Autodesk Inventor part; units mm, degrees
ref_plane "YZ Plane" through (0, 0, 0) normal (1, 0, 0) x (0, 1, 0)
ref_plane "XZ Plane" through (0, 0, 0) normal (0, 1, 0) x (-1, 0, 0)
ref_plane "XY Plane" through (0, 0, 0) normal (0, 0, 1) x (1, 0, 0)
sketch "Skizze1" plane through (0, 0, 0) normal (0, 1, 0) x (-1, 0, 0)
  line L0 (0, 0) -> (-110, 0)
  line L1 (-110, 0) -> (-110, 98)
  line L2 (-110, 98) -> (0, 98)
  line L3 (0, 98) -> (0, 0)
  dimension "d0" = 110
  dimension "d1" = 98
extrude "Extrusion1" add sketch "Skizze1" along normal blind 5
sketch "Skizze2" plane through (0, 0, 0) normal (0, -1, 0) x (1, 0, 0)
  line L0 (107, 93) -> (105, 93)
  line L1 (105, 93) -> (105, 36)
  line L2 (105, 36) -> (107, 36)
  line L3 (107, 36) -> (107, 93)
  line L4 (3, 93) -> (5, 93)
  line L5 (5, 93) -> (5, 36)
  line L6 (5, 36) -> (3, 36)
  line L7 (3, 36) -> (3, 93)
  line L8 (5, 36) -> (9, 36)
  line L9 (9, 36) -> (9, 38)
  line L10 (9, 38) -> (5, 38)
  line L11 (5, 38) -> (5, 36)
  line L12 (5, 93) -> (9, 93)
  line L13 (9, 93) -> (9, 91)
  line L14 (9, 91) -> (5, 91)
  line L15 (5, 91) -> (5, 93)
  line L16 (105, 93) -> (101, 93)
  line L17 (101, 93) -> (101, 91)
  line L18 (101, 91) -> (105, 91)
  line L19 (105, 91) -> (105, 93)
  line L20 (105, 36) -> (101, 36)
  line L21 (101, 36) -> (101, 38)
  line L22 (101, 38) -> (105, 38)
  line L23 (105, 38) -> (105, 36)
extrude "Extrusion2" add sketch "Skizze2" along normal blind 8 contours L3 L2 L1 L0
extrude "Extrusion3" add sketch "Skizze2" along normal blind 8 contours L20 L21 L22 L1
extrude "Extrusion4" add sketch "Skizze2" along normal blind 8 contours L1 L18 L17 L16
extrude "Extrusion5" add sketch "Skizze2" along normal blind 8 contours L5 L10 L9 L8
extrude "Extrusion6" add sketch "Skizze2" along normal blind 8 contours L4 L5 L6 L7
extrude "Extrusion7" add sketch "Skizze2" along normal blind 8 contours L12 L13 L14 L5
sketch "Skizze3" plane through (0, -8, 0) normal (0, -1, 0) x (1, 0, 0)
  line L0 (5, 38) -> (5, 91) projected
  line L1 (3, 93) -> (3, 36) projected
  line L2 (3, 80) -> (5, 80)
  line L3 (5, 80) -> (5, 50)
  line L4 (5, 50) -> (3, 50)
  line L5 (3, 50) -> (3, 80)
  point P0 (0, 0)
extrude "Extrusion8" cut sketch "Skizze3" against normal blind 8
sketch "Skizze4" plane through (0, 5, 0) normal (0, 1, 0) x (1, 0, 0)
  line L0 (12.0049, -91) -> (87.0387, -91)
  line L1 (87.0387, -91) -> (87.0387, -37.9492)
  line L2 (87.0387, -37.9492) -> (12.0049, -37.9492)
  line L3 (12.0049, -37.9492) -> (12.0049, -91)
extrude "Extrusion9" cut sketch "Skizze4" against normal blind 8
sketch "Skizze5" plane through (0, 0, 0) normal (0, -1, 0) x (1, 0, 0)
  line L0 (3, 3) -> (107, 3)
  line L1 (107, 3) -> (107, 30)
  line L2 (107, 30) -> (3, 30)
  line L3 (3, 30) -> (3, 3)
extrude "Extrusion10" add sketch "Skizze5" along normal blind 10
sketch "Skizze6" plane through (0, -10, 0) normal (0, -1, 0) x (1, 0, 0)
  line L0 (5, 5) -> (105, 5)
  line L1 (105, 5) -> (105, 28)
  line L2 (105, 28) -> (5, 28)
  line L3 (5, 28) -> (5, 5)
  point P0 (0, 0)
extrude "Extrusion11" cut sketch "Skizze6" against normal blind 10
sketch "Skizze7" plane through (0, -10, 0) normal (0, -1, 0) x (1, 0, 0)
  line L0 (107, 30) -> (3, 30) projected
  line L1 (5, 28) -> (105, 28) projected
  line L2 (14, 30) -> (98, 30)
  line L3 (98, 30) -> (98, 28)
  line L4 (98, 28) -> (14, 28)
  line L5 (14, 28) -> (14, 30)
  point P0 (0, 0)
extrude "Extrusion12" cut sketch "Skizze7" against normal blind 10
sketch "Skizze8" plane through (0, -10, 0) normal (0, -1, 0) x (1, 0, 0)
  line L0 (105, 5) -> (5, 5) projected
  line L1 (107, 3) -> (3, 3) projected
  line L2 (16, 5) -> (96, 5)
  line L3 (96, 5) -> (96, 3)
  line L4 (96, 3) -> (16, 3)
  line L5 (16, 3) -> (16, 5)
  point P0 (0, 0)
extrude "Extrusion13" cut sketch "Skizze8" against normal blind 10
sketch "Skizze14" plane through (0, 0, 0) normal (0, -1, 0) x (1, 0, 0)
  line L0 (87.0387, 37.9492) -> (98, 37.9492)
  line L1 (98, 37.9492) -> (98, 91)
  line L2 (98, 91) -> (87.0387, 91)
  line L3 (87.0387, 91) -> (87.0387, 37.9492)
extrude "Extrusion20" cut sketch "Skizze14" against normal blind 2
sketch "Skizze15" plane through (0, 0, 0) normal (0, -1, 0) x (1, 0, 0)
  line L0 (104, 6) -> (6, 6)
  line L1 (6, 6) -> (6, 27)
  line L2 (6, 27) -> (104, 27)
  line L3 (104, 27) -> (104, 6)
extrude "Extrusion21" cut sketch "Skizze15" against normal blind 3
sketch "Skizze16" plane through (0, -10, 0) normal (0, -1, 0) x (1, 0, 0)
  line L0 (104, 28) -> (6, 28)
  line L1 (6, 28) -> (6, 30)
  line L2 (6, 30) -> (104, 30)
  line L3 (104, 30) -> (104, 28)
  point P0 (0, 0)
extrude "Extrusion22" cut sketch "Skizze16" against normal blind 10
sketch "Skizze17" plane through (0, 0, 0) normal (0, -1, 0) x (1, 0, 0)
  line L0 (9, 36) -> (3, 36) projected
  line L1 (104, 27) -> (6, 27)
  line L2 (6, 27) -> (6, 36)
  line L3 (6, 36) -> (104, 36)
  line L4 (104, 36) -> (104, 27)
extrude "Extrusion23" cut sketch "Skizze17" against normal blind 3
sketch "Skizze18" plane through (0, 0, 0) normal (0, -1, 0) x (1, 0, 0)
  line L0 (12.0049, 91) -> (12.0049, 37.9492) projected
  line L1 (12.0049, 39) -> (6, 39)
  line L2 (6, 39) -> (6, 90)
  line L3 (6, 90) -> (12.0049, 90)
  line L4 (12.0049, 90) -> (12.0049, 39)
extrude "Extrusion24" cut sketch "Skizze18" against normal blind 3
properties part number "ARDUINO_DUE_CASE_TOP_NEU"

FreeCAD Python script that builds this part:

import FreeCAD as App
import Part
import Sketcher

V = App.Vector


def add_polygon(sketch, points):
    """Adds a closed chain of lines whose ends are joined by coincident constraints."""
    first, n = sketch.GeometryCount, len(points)
    for a, b in zip(points, points[1:] + points[:1]):
        sketch.addGeometry(Part.LineSegment(App.Vector(*a, 0), App.Vector(*b, 0)), False)
    for i in range(n):
        sketch.addConstraint(Sketcher.Constraint("Coincident", first + i, 2, first + (i + 1) % n, 1))

doc = App.newDocument("Part")
body = doc.addObject("PartDesign::Body", "Body")

# Sketch on XZ plane
sketch1 = doc.addObject("Sketcher::SketchObject", "Sketch")
body.addObject(sketch1)
sketch1.AttachmentSupport = (doc.XZ_Plane, [""])
sketch1.MapMode = "FlatFace"
add_polygon(sketch1, [(110, 0), (0, 0), (0, 98), (110, 98)])  # lines 0-3
sketch1.addConstraint(Sketcher.Constraint("Horizontal", 0))
sketch1.addConstraint(Sketcher.Constraint("Vertical", 1))
sketch1.addConstraint(Sketcher.Constraint("Horizontal", 2))
sketch1.addConstraint(Sketcher.Constraint("Vertical", 3))
sketch1.addConstraint(Sketcher.Constraint("Coincident", 0, 2, -1, 1))
sketch1.addConstraint(Sketcher.Constraint("DistanceX", 0, 2, 0, 1, 110.0))
sketch1.addConstraint(Sketcher.Constraint("DistanceY", 1, 1, 1, 2, 98.0))
pad1 = doc.addObject("PartDesign::Pad", "Pad")
body.addObject(pad1)
pad1.Profile = sketch1
pad1.Length = 5
pad1.Reversed = True

# Sketch on XZ plane
sketch2 = doc.addObject("Sketcher::SketchObject", "Sketch001")
body.addObject(sketch2)
sketch2.AttachmentSupport = (doc.XZ_Plane, [""])
sketch2.MapMode = "FlatFace"
add_polygon(sketch2, [(107, 36), (107, 93), (105, 93), (105, 36)])  # lines 0-3
sketch2.addConstraint(Sketcher.Constraint("Vertical", 0))
sketch2.addConstraint(Sketcher.Constraint("Horizontal", 1))
sketch2.addConstraint(Sketcher.Constraint("Vertical", 2))
sketch2.addConstraint(Sketcher.Constraint("Horizontal", 3))
sketch2.addConstraint(Sketcher.Constraint("DistanceX", 1, 2, 1, 1, 2.0))
sketch2.addConstraint(Sketcher.Constraint("DistanceY", 0, 1, 0, 2, 57.0))
sketch2.addConstraint(Sketcher.Constraint("DistanceX", -1, 1, 0, 2, 107.0))
sketch2.addConstraint(Sketcher.Constraint("DistanceY", -1, 1, 0, 2, 93.0))
pad2 = doc.addObject("PartDesign::Pad", "Pad001")
body.addObject(pad2)
pad2.Profile = sketch2
pad2.Length = 8

# Sketch on XZ plane
sketch3 = doc.addObject("Sketcher::SketchObject", "Sketch002")
body.addObject(sketch3)
sketch3.AttachmentSupport = (doc.XZ_Plane, [""])
sketch3.MapMode = "FlatFace"
add_polygon(sketch3, [(101, 36), (105, 36), (105, 38), (101, 38)])  # lines 0-3
sketch3.addConstraint(Sketcher.Constraint("Horizontal", 0))
sketch3.addConstraint(Sketcher.Constraint("Vertical", 1))
sketch3.addConstraint(Sketcher.Constraint("Horizontal", 2))
sketch3.addConstraint(Sketcher.Constraint("Vertical", 3))
sketch3.addConstraint(Sketcher.Constraint("DistanceX", 0, 1, 0, 2, 4.0))
sketch3.addConstraint(Sketcher.Constraint("DistanceY", 1, 1, 1, 2, 2.0))
sketch3.addConstraint(Sketcher.Constraint("DistanceX", -1, 1, 0, 2, 105.0))
sketch3.addConstraint(Sketcher.Constraint("DistanceY", -1, 1, 0, 2, 36.0))
pad3 = doc.addObject("PartDesign::Pad", "Pad002")
body.addObject(pad3)
pad3.Profile = sketch3
pad3.Length = 8

# Sketch on XZ plane
sketch4 = doc.addObject("Sketcher::SketchObject", "Sketch003")
body.addObject(sketch4)
sketch4.AttachmentSupport = (doc.XZ_Plane, [""])
sketch4.MapMode = "FlatFace"
add_polygon(sketch4, [(105, 91), (105, 93), (101, 93), (101, 91)])  # lines 0-3
sketch4.addConstraint(Sketcher.Constraint("Vertical", 0))
sketch4.addConstraint(Sketcher.Constraint("Horizontal", 1))
sketch4.addConstraint(Sketcher.Constraint("Vertical", 2))
sketch4.addConstraint(Sketcher.Constraint("Horizontal", 3))
sketch4.addConstraint(Sketcher.Constraint("DistanceX", 1, 2, 1, 1, 4.0))
sketch4.addConstraint(Sketcher.Constraint("DistanceY", 0, 1, 0, 2, 2.0))
sketch4.addConstraint(Sketcher.Constraint("DistanceX", -1, 1, 0, 2, 105.0))
sketch4.addConstraint(Sketcher.Constraint("DistanceY", -1, 1, 0, 2, 93.0))
pad4 = doc.addObject("PartDesign::Pad", "Pad003")
body.addObject(pad4)
pad4.Profile = sketch4
pad4.Length = 8

# Sketch on XZ plane
sketch5 = doc.addObject("Sketcher::SketchObject", "Sketch004")
body.addObject(sketch5)
sketch5.AttachmentSupport = (doc.XZ_Plane, [""])
sketch5.MapMode = "FlatFace"
add_polygon(sketch5, [(5, 38), (5, 36), (9, 36), (9, 38)])  # lines 0-3
sketch5.addConstraint(Sketcher.Constraint("Vertical", 0))
sketch5.addConstraint(Sketcher.Constraint("Horizontal", 1))
sketch5.addConstraint(Sketcher.Constraint("Vertical", 2))
sketch5.addConstraint(Sketcher.Constraint("Horizontal", 3))
sketch5.addConstraint(Sketcher.Constraint("DistanceX", 1, 1, 1, 2, 4.0))
sketch5.addConstraint(Sketcher.Constraint("DistanceY", 0, 2, 0, 1, 2.0))
sketch5.addConstraint(Sketcher.Constraint("DistanceX", -1, 1, 0, 2, 5.0))
sketch5.addConstraint(Sketcher.Constraint("DistanceY", -1, 1, 0, 2, 36.0))
pad5 = doc.addObject("PartDesign::Pad", "Pad004")
body.addObject(pad5)
pad5.Profile = sketch5
pad5.Length = 8

# Sketch on XZ plane
sketch6 = doc.addObject("Sketcher::SketchObject", "Sketch005")
body.addObject(sketch6)
sketch6.AttachmentSupport = (doc.XZ_Plane, [""])
sketch6.MapMode = "FlatFace"
add_polygon(sketch6, [(5, 93), (3, 93), (3, 36), (5, 36)])  # lines 0-3
sketch6.addConstraint(Sketcher.Constraint("Horizontal", 0))
sketch6.addConstraint(Sketcher.Constraint("Vertical", 1))
sketch6.addConstraint(Sketcher.Constraint("Horizontal", 2))
sketch6.addConstraint(Sketcher.Constraint("Vertical", 3))
sketch6.addConstraint(Sketcher.Constraint("DistanceX", 0, 2, 0, 1, 2.0))
sketch6.addConstraint(Sketcher.Constraint("DistanceY", 1, 2, 1, 1, 57.0))
sketch6.addConstraint(Sketcher.Constraint("DistanceX", -1, 1, 0, 2, 3.0))
sketch6.addConstraint(Sketcher.Constraint("DistanceY", -1, 1, 0, 2, 93.0))
pad6 = doc.addObject("PartDesign::Pad", "Pad005")
body.addObject(pad6)
pad6.Profile = sketch6
pad6.Length = 8

# Sketch on XZ plane
sketch7 = doc.addObject("Sketcher::SketchObject", "Sketch006")
body.addObject(sketch7)
sketch7.AttachmentSupport = (doc.XZ_Plane, [""])
sketch7.MapMode = "FlatFace"
add_polygon(sketch7, [(9, 93), (5, 93), (5, 91), (9, 91)])  # lines 0-3
sketch7.addConstraint(Sketcher.Constraint("Horizontal", 0))
sketch7.addConstraint(Sketcher.Constraint("Vertical", 1))
sketch7.addConstraint(Sketcher.Constraint("Horizontal", 2))
sketch7.addConstraint(Sketcher.Constraint("Vertical", 3))
sketch7.addConstraint(Sketcher.Constraint("DistanceX", 0, 2, 0, 1, 4.0))
sketch7.addConstraint(Sketcher.Constraint("DistanceY", 1, 2, 1, 1, 2.0))
sketch7.addConstraint(Sketcher.Constraint("DistanceX", -1, 1, 0, 2, 5.0))
sketch7.addConstraint(Sketcher.Constraint("DistanceY", -1, 1, 0, 2, 93.0))
pad7 = doc.addObject("PartDesign::Pad", "Pad006")
body.addObject(pad7)
pad7.Profile = sketch7
pad7.Length = 8

# Sketch on XZ plane
sketch8 = doc.addObject("Sketcher::SketchObject", "Sketch007")
body.addObject(sketch8)
sketch8.AttachmentSupport = (doc.XZ_Plane, [""])
sketch8.MapMode = "FlatFace"
sketch8.AttachmentOffset = App.Placement(V(0, 0, 8), App.Rotation())
add_polygon(sketch8, [(3, 50), (5, 50), (5, 80), (3, 80)])  # lines 0-3
sketch8.addConstraint(Sketcher.Constraint("Horizontal", 0))
sketch8.addConstraint(Sketcher.Constraint("Vertical", 1))
sketch8.addConstraint(Sketcher.Constraint("Horizontal", 2))
sketch8.addConstraint(Sketcher.Constraint("Vertical", 3))
sketch8.addConstraint(Sketcher.Constraint("DistanceX", 0, 1, 0, 2, 2.0))
sketch8.addConstraint(Sketcher.Constraint("DistanceY", 1, 1, 1, 2, 30.0))
sketch8.addConstraint(Sketcher.Constraint("DistanceX", -1, 1, 0, 2, 5.0))
sketch8.addConstraint(Sketcher.Constraint("DistanceY", -1, 1, 0, 2, 50.0))
pocket1 = doc.addObject("PartDesign::Pocket", "Pocket")
body.addObject(pocket1)
pocket1.Profile = sketch8
pocket1.Length = 8

# Sketch on XZ plane
sketch9 = doc.addObject("Sketcher::SketchObject", "Sketch008")
body.addObject(sketch9)
sketch9.AttachmentSupport = (doc.XZ_Plane, [""])
sketch9.MapMode = "FlatFace"
sketch9.AttachmentOffset = App.Placement(V(0, 0, -5), App.Rotation())
add_polygon(sketch9, [(12, 38), (12, 91), (87, 91), (87, 38)])  # lines 0-3
sketch9.addConstraint(Sketcher.Constraint("Vertical", 0))
sketch9.addConstraint(Sketcher.Constraint("Horizontal", 1))
sketch9.addConstraint(Sketcher.Constraint("Vertical", 2))
sketch9.addConstraint(Sketcher.Constraint("Horizontal", 3))
sketch9.addConstraint(Sketcher.Constraint("DistanceY", -1, 1, 0, 2, 91.0))
sketch9.addConstraint(Sketcher.Constraint("DistanceX", 1, 1, 1, 2, 75.0338))
sketch9.addConstraint(Sketcher.Constraint("DistanceY", 0, 1, 0, 2, 53.0508))
sketch9.addConstraint(Sketcher.Constraint("DistanceX", -1, 1, 0, 2, 12.005))
pocket2 = doc.addObject("PartDesign::Pocket", "Pocket001")
body.addObject(pocket2)
pocket2.Profile = sketch9
pocket2.Length = 8
pocket2.Reversed = True

# Sketch on XZ plane
sketch10 = doc.addObject("Sketcher::SketchObject", "Sketch009")
body.addObject(sketch10)
sketch10.AttachmentSupport = (doc.XZ_Plane, [""])
sketch10.MapMode = "FlatFace"
add_polygon(sketch10, [(3, 30), (3, 3), (107, 3), (107, 30)])  # lines 0-3
sketch10.addConstraint(Sketcher.Constraint("Vertical", 0))
sketch10.addConstraint(Sketcher.Constraint("Horizontal", 1))
sketch10.addConstraint(Sketcher.Constraint("Vertical", 2))
sketch10.addConstraint(Sketcher.Constraint("Horizontal", 3))
sketch10.addConstraint(Sketcher.Constraint("DistanceX", 1, 1, 1, 2, 104.0))
sketch10.addConstraint(Sketcher.Constraint("DistanceY", 0, 2, 0, 1, 27.0))
sketch10.addConstraint(Sketcher.Constraint("DistanceX", -1, 1, 0, 2, 3.0))
sketch10.addConstraint(Sketcher.Constraint("DistanceY", -1, 1, 0, 2, 3.0))
pad8 = doc.addObject("PartDesign::Pad", "Pad007")
body.addObject(pad8)
pad8.Profile = sketch10
pad8.Length = 10

# Sketch on XZ plane
sketch11 = doc.addObject("Sketcher::SketchObject", "Sketch010")
body.addObject(sketch11)
sketch11.AttachmentSupport = (doc.XZ_Plane, [""])
sketch11.MapMode = "FlatFace"
sketch11.AttachmentOffset = App.Placement(V(0, 0, 10), App.Rotation())
add_polygon(sketch11, [(5, 28), (5, 5), (105, 5), (105, 28)])  # lines 0-3
sketch11.addConstraint(Sketcher.Constraint("Vertical", 0))
sketch11.addConstraint(Sketcher.Constraint("Horizontal", 1))
sketch11.addConstraint(Sketcher.Constraint("Vertical", 2))
sketch11.addConstraint(Sketcher.Constraint("Horizontal", 3))
sketch11.addConstraint(Sketcher.Constraint("DistanceX", 1, 1, 1, 2, 100.0))
sketch11.addConstraint(Sketcher.Constraint("DistanceY", 0, 2, 0, 1, 23.0))
sketch11.addConstraint(Sketcher.Constraint("DistanceX", -1, 1, 0, 2, 5.0))
sketch11.addConstraint(Sketcher.Constraint("DistanceY", -1, 1, 0, 2, 5.0))
pocket3 = doc.addObject("PartDesign::Pocket", "Pocket002")
body.addObject(pocket3)
pocket3.Profile = sketch11
pocket3.Length = 10

# Sketch on XZ plane
sketch12 = doc.addObject("Sketcher::SketchObject", "Sketch011")
body.addObject(sketch12)
sketch12.AttachmentSupport = (doc.XZ_Plane, [""])
sketch12.MapMode = "FlatFace"
sketch12.AttachmentOffset = App.Placement(V(0, 0, 10), App.Rotation())
add_polygon(sketch12, [(98, 28), (98, 30), (14, 30), (14, 28)])  # lines 0-3
sketch12.addConstraint(Sketcher.Constraint("Vertical", 0))
sketch12.addConstraint(Sketcher.Constraint("Horizontal", 1))
sketch12.addConstraint(Sketcher.Constraint("Vertical", 2))
sketch12.addConstraint(Sketcher.Constraint("Horizontal", 3))
sketch12.addConstraint(Sketcher.Constraint("DistanceX", 1, 2, 1, 1, 84.0))
sketch12.addConstraint(Sketcher.Constraint("DistanceY", 0, 1, 0, 2, 2.0))
sketch12.addConstraint(Sketcher.Constraint("DistanceX", -1, 1, 0, 2, 98.0))
sketch12.addConstraint(Sketcher.Constraint("DistanceY", -1, 1, 0, 2, 30.0))
pocket4 = doc.addObject("PartDesign::Pocket", "Pocket003")
body.addObject(pocket4)
pocket4.Profile = sketch12
pocket4.Length = 10

# Sketch on XZ plane
sketch13 = doc.addObject("Sketcher::SketchObject", "Sketch012")
body.addObject(sketch13)
sketch13.AttachmentSupport = (doc.XZ_Plane, [""])
sketch13.MapMode = "FlatFace"
sketch13.AttachmentOffset = App.Placement(V(0, 0, 10), App.Rotation())
add_polygon(sketch13, [(96, 3), (96, 5), (16, 5), (16, 3)])  # lines 0-3
sketch13.addConstraint(Sketcher.Constraint("Vertical", 0))
sketch13.addConstraint(Sketcher.Constraint("Horizontal", 1))
sketch13.addConstraint(Sketcher.Constraint("Vertical", 2))
sketch13.addConstraint(Sketcher.Constraint("Horizontal", 3))
sketch13.addConstraint(Sketcher.Constraint("DistanceX", 1, 2, 1, 1, 80.0))
sketch13.addConstraint(Sketcher.Constraint("DistanceY", 0, 1, 0, 2, 2.0))
sketch13.addConstraint(Sketcher.Constraint("DistanceX", -1, 1, 0, 2, 96.0))
sketch13.addConstraint(Sketcher.Constraint("DistanceY", -1, 1, 0, 2, 5.0))
pocket5 = doc.addObject("PartDesign::Pocket", "Pocket004")
body.addObject(pocket5)
pocket5.Profile = sketch13
pocket5.Length = 10

# Sketch on XZ plane
sketch14 = doc.addObject("Sketcher::SketchObject", "Sketch013")
body.addObject(sketch14)
sketch14.AttachmentSupport = (doc.XZ_Plane, [""])
sketch14.MapMode = "FlatFace"
add_polygon(sketch14, [(87, 91), (87, 38), (98, 38), (98, 91)])  # lines 0-3
sketch14.addConstraint(Sketcher.Constraint("Vertical", 0))
sketch14.addConstraint(Sketcher.Constraint("Horizontal", 1))
sketch14.addConstraint(Sketcher.Constraint("Vertical", 2))
sketch14.addConstraint(Sketcher.Constraint("Horizontal", 3))
sketch14.addConstraint(Sketcher.Constraint("DistanceX", -1, 1, 1, 2, 98.0))
sketch14.addConstraint(Sketcher.Constraint("DistanceY", -1, 1, 2, 2, 91.0))
sketch14.addConstraint(Sketcher.Constraint("DistanceX", 1, 1, 1, 2, 10.9613))
sketch14.addConstraint(Sketcher.Constraint("DistanceY", 0, 2, 0, 1, 53.0508))
pocket6 = doc.addObject("PartDesign::Pocket", "Pocket005")
body.addObject(pocket6)
pocket6.Profile = sketch14
pocket6.Length = 2

# Sketch on XZ plane
sketch15 = doc.addObject("Sketcher::SketchObject", "Sketch014")
body.addObject(sketch15)
sketch15.AttachmentSupport = (doc.XZ_Plane, [""])
sketch15.MapMode = "FlatFace"
add_polygon(sketch15, [(6, 6), (104, 6), (104, 27), (6, 27)])  # lines 0-3
sketch15.addConstraint(Sketcher.Constraint("Horizontal", 0))
sketch15.addConstraint(Sketcher.Constraint("Vertical", 1))
sketch15.addConstraint(Sketcher.Constraint("Horizontal", 2))
sketch15.addConstraint(Sketcher.Constraint("Vertical", 3))
sketch15.addConstraint(Sketcher.Constraint("DistanceX", 0, 1, 0, 2, 98.0))
sketch15.addConstraint(Sketcher.Constraint("DistanceY", 1, 1, 1, 2, 21.0))
sketch15.addConstraint(Sketcher.Constraint("DistanceX", -1, 1, 0, 2, 104.0))
sketch15.addConstraint(Sketcher.Constraint("DistanceY", -1, 1, 0, 2, 6.0))
pocket7 = doc.addObject("PartDesign::Pocket", "Pocket006")
body.addObject(pocket7)
pocket7.Profile = sketch15
pocket7.Length = 3

# Sketch on XZ plane
sketch16 = doc.addObject("Sketcher::SketchObject", "Sketch015")
body.addObject(sketch16)
sketch16.AttachmentSupport = (doc.XZ_Plane, [""])
sketch16.MapMode = "FlatFace"
sketch16.AttachmentOffset = App.Placement(V(0, 0, 10), App.Rotation())
add_polygon(sketch16, [(6, 28), (104, 28), (104, 30), (6, 30)])  # lines 0-3
sketch16.addConstraint(Sketcher.Constraint("Horizontal", 0))
sketch16.addConstraint(Sketcher.Constraint("Vertical", 1))
sketch16.addConstraint(Sketcher.Constraint("Horizontal", 2))
sketch16.addConstraint(Sketcher.Constraint("Vertical", 3))
sketch16.addConstraint(Sketcher.Constraint("DistanceX", 0, 1, 0, 2, 98.0))
sketch16.addConstraint(Sketcher.Constraint("DistanceY", 1, 1, 1, 2, 2.0))
sketch16.addConstraint(Sketcher.Constraint("DistanceX", -1, 1, 0, 2, 104.0))
sketch16.addConstraint(Sketcher.Constraint("DistanceY", -1, 1, 0, 2, 28.0))
pocket8 = doc.addObject("PartDesign::Pocket", "Pocket007")
body.addObject(pocket8)
pocket8.Profile = sketch16
pocket8.Length = 10

# Sketch on XZ plane
sketch17 = doc.addObject("Sketcher::SketchObject", "Sketch016")
body.addObject(sketch17)
sketch17.AttachmentSupport = (doc.XZ_Plane, [""])
sketch17.MapMode = "FlatFace"
add_polygon(sketch17, [(104, 36), (6, 36), (6, 27), (104, 27)])  # lines 0-3
sketch17.addConstraint(Sketcher.Constraint("Horizontal", 0))
sketch17.addConstraint(Sketcher.Constraint("Vertical", 1))
sketch17.addConstraint(Sketcher.Constraint("Horizontal", 2))
sketch17.addConstraint(Sketcher.Constraint("Vertical", 3))
sketch17.addConstraint(Sketcher.Constraint("DistanceX", 0, 2, 0, 1, 98.0))
sketch17.addConstraint(Sketcher.Constraint("DistanceY", 1, 2, 1, 1, 9.0))
sketch17.addConstraint(Sketcher.Constraint("DistanceX", -1, 1, 0, 2, 6.0))
sketch17.addConstraint(Sketcher.Constraint("DistanceY", -1, 1, 0, 2, 36.0))
pocket9 = doc.addObject("PartDesign::Pocket", "Pocket008")
body.addObject(pocket9)
pocket9.Profile = sketch17
pocket9.Length = 3

# Sketch on XZ plane
sketch18 = doc.addObject("Sketcher::SketchObject", "Sketch017")
body.addObject(sketch18)
sketch18.AttachmentSupport = (doc.XZ_Plane, [""])
sketch18.MapMode = "FlatFace"
add_polygon(sketch18, [(12, 39), (12, 90), (6, 90), (6, 39)])  # lines 0-3
sketch18.addConstraint(Sketcher.Constraint("Vertical", 0))
sketch18.addConstraint(Sketcher.Constraint("Horizontal", 1))
sketch18.addConstraint(Sketcher.Constraint("Vertical", 2))
sketch18.addConstraint(Sketcher.Constraint("Horizontal", 3))
sketch18.addConstraint(Sketcher.Constraint("DistanceY", 0, 1, 0, 2, 51.0))
sketch18.addConstraint(Sketcher.Constraint("DistanceY", -1, 1, 0, 2, 90.0))
sketch18.addConstraint(Sketcher.Constraint("DistanceX", -1, 1, 1, 2, 6.0))
sketch18.addConstraint(Sketcher.Constraint("DistanceX", 1, 2, 1, 1, 6.005))
pocket10 = doc.addObject("PartDesign::Pocket", "Pocket009")
body.addObject(pocket10)
pocket10.Profile = sketch18
pocket10.Length = 3

doc.recompute()
